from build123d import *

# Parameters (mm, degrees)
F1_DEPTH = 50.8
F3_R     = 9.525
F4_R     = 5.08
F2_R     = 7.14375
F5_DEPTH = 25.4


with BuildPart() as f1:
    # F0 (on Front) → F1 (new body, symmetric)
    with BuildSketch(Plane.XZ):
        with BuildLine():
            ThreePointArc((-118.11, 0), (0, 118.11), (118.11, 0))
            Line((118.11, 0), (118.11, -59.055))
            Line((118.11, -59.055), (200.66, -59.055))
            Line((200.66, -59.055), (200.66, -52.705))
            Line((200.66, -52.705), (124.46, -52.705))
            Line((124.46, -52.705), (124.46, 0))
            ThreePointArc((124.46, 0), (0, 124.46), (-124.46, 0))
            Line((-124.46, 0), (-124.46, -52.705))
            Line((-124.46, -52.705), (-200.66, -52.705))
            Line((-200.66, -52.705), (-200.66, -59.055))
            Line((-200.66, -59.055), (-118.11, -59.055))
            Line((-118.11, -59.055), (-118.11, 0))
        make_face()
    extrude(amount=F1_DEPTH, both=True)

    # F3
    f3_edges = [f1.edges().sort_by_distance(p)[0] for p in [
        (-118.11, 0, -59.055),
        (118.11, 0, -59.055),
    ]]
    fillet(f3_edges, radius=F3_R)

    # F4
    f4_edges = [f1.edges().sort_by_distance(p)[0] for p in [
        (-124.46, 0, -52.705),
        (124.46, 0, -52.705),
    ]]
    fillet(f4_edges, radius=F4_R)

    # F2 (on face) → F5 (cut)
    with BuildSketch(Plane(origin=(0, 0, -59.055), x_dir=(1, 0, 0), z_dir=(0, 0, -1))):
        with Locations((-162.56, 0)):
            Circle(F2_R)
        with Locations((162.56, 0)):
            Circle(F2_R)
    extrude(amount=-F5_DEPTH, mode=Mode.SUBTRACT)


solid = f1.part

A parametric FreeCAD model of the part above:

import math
import FreeCAD as App
import Part
import Sketcher
from FreeCAD import Vector
Q = App.Units.Quantity


def edges_at(feature, points):
    """Names of the edges that pass closest to the given points."""
    edges = feature.Shape.Edges
    near = lambda p: min(range(len(edges)), key=lambda i: edges[i].distToShape(Part.Vertex(*p))[0])
    return sorted({f"Edge{near(p) + 1}" for p in points})

doc = App.newDocument("Part")
body = doc.addObject("PartDesign::Body", "Body")

# Sketch on XZ plane
sketch1 = doc.addObject("Sketcher::SketchObject", "Sketch")
body.addObject(sketch1)
sketch1.AttachmentSupport = (doc.XZ_Plane, [""])
sketch1.MapMode = "FlatFace"
sketch1.addGeometry(Part.ArcOfCircle(Part.Circle(Vector(0, 0, 0), Vector(0, 0, 1), 118), math.radians(0), math.radians(180)), False)
sketch1.addGeometry(Part.LineSegment(Vector(118, 0, 0), Vector(118, -59, 0)), False)
sketch1.addGeometry(Part.LineSegment(Vector(118, -59, 0), Vector(201, -59, 0)), False)
sketch1.addGeometry(Part.LineSegment(Vector(201, -59, 0), Vector(201, -53, 0)), False)
sketch1.addGeometry(Part.LineSegment(Vector(201, -53, 0), Vector(124, -53, 0)), False)
sketch1.addGeometry(Part.LineSegment(Vector(124, -53, 0), Vector(124, 0, 0)), False)
sketch1.addGeometry(Part.ArcOfCircle(Part.Circle(Vector(0, 0, 0), Vector(0, 0, 1), 124), math.radians(0), math.radians(180)), False)
sketch1.addGeometry(Part.LineSegment(Vector(-124, 0, 0), Vector(-124, -53, 0)), False)
sketch1.addGeometry(Part.LineSegment(Vector(-124, -53, 0), Vector(-201, -53, 0)), False)
sketch1.addGeometry(Part.LineSegment(Vector(-201, -53, 0), Vector(-201, -59, 0)), False)
sketch1.addGeometry(Part.LineSegment(Vector(-201, -59, 0), Vector(-118, -59, 0)), False)
sketch1.addGeometry(Part.LineSegment(Vector(-118, -59, 0), Vector(-118, 0, 0)), False)
sketch1.addConstraint(Sketcher.Constraint("Tangent", 0, 1, 1, 1))
sketch1.addConstraint(Sketcher.Constraint("Coincident", 1, 2, 2, 1))
sketch1.addConstraint(Sketcher.Constraint("Coincident", 2, 2, 3, 1))
sketch1.addConstraint(Sketcher.Constraint("Coincident", 3, 2, 4, 1))
sketch1.addConstraint(Sketcher.Constraint("Coincident", 4, 2, 5, 1))
sketch1.addConstraint(Sketcher.Constraint("Tangent", 5, 2, 6, 1))
sketch1.addConstraint(Sketcher.Constraint("Tangent", 6, 2, 7, 1))
sketch1.addConstraint(Sketcher.Constraint("Coincident", 7, 2, 8, 1))
sketch1.addConstraint(Sketcher.Constraint("Coincident", 8, 2, 9, 1))
sketch1.addConstraint(Sketcher.Constraint("Coincident", 9, 2, 10, 1))
sketch1.addConstraint(Sketcher.Constraint("Coincident", 10, 2, 11, 1))
sketch1.addConstraint(Sketcher.Constraint("Tangent", 11, 2, 0, 2))
sketch1.addConstraint(Sketcher.Constraint("Vertical", 1))
sketch1.addConstraint(Sketcher.Constraint("Horizontal", 2))
sketch1.addConstraint(Sketcher.Constraint("Vertical", 3))
sketch1.addConstraint(Sketcher.Constraint("Horizontal", 4))
sketch1.addConstraint(Sketcher.Constraint("Vertical", 5))
sketch1.addConstraint(Sketcher.Constraint("Vertical", 7))
sketch1.addConstraint(Sketcher.Constraint("Horizontal", 8))
sketch1.addConstraint(Sketcher.Constraint("Vertical", 9))
sketch1.addConstraint(Sketcher.Constraint("Horizontal", 10))
sketch1.addConstraint(Sketcher.Constraint("Vertical", 11))
sketch1.addConstraint(Sketcher.Constraint("Coincident", 0, 3, -1, 1))
sketch1.addConstraint(Sketcher.Constraint("Coincident", 6, 3, -1, 1))
sketch1.addConstraint(Sketcher.Constraint("Symmetric", 3, 2, 8, 2, -2))
sketch1.addConstraint(Sketcher.Constraint("Horizontal", 2, 2, 9, 2))
sketch1.addConstraint(Sketcher.Constraint("Radius", 6, Q("4.9 in")))
sketch1.addConstraint(Sketcher.Constraint("DistanceX", 4, 2, 4, 1, Q("3 in")))
sketch1.addConstraint(Sketcher.Constraint("Radius", 0, Q("4.65 in")))
sketch1.addConstraint(Sketcher.Constraint("DistanceY", 3, 1, 3, 2, Q("0.25 in")))
sketch1.addConstraint(Sketcher.Constraint("DistanceY", 1, 2, 1, 1, Q("2.325 in")))
pad1 = doc.addObject("PartDesign::Pad", "Pad")
body.addObject(pad1)
pad1.Profile = sketch1
pad1.Length = Q("4 in")
pad1.Midplane = True
doc.recompute()

fillet = doc.addObject("PartDesign::Fillet", "Fillet")
body.addObject(fillet)
fillet.Base = (pad1, edges_at(pad1, [(-118.11, 0, -59.055), (118.11, 0, -59.055)]))
fillet.Radius = Q("0.375 in")
doc.recompute()

fillet2 = doc.addObject("PartDesign::Fillet", "Fillet001")
body.addObject(fillet2)
fillet2.Base = (fillet, edges_at(fillet, [(-124.46, 0, -52.705), (124.46, 0, -52.705)]))
fillet2.Radius = Q("0.2 in")

# Sketch on XY plane
sketch2 = doc.addObject("Sketcher::SketchObject", "Sketch001")
body.addObject(sketch2)
sketch2.AttachmentSupport = (doc.XY_Plane, [""])
sketch2.MapMode = "FlatFace"
sketch2.AttachmentOffset = App.Placement(Vector(0, 0, -2.325 * 25.4), App.Rotation())
sketch2.addGeometry(Part.Circle(Vector(-163, 0, 0), Vector(0, 0, 1), 7), False)
sketch2.addGeometry(Part.Circle(Vector(163, 0, 0), Vector(0, 0, 1), 7), False)
sketch2.addConstraint(Sketcher.Constraint("Equal", 0, 1))
sketch2.addConstraint(Sketcher.Constraint("Symmetric", 0, 3, 1, 3, -1, 1))
sketch2.addConstraint(Sketcher.Constraint("PointOnObject", 0, 3, -1))
sketch2.addConstraint(Sketcher.Constraint("Diameter", 0, Q("0.5625 in")))
sketch2.addConstraint(Sketcher.Constraint("DistanceX", 0, 3, -1, 1, Q("6.4 in")))
pocket1 = doc.addObject("PartDesign::Pocket", "Pocket")
body.addObject(pocket1)
pocket1.Profile = sketch2
pocket1.Length = Q("1 in")
pocket1.Reversed = True

doc.recompute()
